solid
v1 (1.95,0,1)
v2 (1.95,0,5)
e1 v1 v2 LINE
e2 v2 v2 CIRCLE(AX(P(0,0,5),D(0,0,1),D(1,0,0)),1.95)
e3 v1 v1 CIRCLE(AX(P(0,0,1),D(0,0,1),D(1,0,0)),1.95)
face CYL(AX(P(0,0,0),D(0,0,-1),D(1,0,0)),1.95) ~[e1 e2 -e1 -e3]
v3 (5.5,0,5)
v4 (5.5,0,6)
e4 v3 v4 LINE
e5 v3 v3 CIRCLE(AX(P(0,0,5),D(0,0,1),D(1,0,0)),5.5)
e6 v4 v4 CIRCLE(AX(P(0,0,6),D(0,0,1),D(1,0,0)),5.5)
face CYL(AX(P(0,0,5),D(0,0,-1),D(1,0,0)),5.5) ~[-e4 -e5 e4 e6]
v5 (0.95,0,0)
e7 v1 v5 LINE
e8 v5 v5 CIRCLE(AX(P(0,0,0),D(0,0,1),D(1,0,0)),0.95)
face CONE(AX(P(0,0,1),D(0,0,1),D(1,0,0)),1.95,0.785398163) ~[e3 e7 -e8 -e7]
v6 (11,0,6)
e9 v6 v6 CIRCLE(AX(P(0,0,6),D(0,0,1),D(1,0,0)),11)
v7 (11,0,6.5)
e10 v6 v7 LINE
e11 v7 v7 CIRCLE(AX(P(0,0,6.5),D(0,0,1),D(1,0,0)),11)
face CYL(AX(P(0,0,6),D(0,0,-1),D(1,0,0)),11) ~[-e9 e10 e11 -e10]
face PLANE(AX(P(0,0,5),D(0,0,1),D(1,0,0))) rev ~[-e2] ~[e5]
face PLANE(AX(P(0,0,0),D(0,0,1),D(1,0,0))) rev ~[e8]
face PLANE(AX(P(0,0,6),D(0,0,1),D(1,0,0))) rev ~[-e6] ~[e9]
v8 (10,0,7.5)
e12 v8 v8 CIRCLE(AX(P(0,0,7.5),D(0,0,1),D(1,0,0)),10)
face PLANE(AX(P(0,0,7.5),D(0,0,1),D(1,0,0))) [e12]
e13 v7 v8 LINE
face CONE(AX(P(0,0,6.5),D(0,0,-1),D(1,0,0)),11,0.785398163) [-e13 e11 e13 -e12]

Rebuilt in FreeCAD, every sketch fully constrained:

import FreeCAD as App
import Part
import Sketcher
from FreeCAD import Vector


def edges_at(feature, points):
    """Names of the edges that pass closest to the given points."""
    edges = feature.Shape.Edges
    near = lambda p: min(range(len(edges)), key=lambda i: edges[i].distToShape(Part.Vertex(*p))[0])
    return sorted({f"Edge{near(p) + 1}" for p in points})

doc = App.newDocument("Part")
body = doc.addObject("PartDesign::Body", "Body")

sketch1 = body.newObject("Sketcher::SketchObject", "Sketch")
sketch1.AttachmentSupport = (doc.getObject("XY_Plane"), [""])
sketch1.MapMode = "FlatFace"
sketch1.addGeometry(Part.Circle(Vector(0, 0, 0), Vector(0, 0, 1), 1.9), False)
sketch1.addConstraint([
    Sketcher.Constraint("Coincident", 0, 3, -1, 1),
    Sketcher.Constraint("Diameter", 0, 3.9),
])
pad1 = body.newObject("PartDesign::Pad", "Pad")
pad1.Profile = sketch1
pad1.Length = 5

sketch2 = body.newObject("Sketcher::SketchObject", "Sketch001")
sketch2.AttachmentSupport = (doc.getObject("XY_Plane"), [""])
sketch2.MapMode = "FlatFace"
sketch2.AttachmentOffset = App.Placement(Vector(0, 0, 5), App.Rotation())
sketch2.addGeometry(Part.Circle(Vector(0, 0, 0), Vector(0, 0, 1), 6), False)
sketch2.addConstraint([
    Sketcher.Constraint("Coincident", 0, 3, -1, 1),
    Sketcher.Constraint("Diameter", 0, 11.0),
])
pad2 = body.newObject("PartDesign::Pad", "Pad001")
pad2.Profile = sketch2
pad2.Length = 1

sketch3 = body.newObject("Sketcher::SketchObject", "Sketch002")
sketch3.AttachmentSupport = (doc.getObject("XY_Plane"), [""])
sketch3.MapMode = "FlatFace"
sketch3.AttachmentOffset = App.Placement(Vector(0, 0, 6), App.Rotation())
sketch3.addGeometry(Part.Circle(Vector(0, 0, 0), Vector(0, 0, 1), 11), False)
sketch3.addConstraint([
    Sketcher.Constraint("Coincident", 0, 3, -1, 1),
    Sketcher.Constraint("Diameter", 0, 22.0),
])
pad3 = body.newObject("PartDesign::Pad", "Pad002")
pad3.Profile = sketch3
pad3.Length = 1.5
doc.recompute()

chamfer = body.newObject("PartDesign::Chamfer", "Chamfer")
chamfer.Base = (pad3, edges_at(pad3, [(-11, 0, 7.5), (-1.95, 0, 0)]))
chamfer.Size = 1

doc.recompute()
